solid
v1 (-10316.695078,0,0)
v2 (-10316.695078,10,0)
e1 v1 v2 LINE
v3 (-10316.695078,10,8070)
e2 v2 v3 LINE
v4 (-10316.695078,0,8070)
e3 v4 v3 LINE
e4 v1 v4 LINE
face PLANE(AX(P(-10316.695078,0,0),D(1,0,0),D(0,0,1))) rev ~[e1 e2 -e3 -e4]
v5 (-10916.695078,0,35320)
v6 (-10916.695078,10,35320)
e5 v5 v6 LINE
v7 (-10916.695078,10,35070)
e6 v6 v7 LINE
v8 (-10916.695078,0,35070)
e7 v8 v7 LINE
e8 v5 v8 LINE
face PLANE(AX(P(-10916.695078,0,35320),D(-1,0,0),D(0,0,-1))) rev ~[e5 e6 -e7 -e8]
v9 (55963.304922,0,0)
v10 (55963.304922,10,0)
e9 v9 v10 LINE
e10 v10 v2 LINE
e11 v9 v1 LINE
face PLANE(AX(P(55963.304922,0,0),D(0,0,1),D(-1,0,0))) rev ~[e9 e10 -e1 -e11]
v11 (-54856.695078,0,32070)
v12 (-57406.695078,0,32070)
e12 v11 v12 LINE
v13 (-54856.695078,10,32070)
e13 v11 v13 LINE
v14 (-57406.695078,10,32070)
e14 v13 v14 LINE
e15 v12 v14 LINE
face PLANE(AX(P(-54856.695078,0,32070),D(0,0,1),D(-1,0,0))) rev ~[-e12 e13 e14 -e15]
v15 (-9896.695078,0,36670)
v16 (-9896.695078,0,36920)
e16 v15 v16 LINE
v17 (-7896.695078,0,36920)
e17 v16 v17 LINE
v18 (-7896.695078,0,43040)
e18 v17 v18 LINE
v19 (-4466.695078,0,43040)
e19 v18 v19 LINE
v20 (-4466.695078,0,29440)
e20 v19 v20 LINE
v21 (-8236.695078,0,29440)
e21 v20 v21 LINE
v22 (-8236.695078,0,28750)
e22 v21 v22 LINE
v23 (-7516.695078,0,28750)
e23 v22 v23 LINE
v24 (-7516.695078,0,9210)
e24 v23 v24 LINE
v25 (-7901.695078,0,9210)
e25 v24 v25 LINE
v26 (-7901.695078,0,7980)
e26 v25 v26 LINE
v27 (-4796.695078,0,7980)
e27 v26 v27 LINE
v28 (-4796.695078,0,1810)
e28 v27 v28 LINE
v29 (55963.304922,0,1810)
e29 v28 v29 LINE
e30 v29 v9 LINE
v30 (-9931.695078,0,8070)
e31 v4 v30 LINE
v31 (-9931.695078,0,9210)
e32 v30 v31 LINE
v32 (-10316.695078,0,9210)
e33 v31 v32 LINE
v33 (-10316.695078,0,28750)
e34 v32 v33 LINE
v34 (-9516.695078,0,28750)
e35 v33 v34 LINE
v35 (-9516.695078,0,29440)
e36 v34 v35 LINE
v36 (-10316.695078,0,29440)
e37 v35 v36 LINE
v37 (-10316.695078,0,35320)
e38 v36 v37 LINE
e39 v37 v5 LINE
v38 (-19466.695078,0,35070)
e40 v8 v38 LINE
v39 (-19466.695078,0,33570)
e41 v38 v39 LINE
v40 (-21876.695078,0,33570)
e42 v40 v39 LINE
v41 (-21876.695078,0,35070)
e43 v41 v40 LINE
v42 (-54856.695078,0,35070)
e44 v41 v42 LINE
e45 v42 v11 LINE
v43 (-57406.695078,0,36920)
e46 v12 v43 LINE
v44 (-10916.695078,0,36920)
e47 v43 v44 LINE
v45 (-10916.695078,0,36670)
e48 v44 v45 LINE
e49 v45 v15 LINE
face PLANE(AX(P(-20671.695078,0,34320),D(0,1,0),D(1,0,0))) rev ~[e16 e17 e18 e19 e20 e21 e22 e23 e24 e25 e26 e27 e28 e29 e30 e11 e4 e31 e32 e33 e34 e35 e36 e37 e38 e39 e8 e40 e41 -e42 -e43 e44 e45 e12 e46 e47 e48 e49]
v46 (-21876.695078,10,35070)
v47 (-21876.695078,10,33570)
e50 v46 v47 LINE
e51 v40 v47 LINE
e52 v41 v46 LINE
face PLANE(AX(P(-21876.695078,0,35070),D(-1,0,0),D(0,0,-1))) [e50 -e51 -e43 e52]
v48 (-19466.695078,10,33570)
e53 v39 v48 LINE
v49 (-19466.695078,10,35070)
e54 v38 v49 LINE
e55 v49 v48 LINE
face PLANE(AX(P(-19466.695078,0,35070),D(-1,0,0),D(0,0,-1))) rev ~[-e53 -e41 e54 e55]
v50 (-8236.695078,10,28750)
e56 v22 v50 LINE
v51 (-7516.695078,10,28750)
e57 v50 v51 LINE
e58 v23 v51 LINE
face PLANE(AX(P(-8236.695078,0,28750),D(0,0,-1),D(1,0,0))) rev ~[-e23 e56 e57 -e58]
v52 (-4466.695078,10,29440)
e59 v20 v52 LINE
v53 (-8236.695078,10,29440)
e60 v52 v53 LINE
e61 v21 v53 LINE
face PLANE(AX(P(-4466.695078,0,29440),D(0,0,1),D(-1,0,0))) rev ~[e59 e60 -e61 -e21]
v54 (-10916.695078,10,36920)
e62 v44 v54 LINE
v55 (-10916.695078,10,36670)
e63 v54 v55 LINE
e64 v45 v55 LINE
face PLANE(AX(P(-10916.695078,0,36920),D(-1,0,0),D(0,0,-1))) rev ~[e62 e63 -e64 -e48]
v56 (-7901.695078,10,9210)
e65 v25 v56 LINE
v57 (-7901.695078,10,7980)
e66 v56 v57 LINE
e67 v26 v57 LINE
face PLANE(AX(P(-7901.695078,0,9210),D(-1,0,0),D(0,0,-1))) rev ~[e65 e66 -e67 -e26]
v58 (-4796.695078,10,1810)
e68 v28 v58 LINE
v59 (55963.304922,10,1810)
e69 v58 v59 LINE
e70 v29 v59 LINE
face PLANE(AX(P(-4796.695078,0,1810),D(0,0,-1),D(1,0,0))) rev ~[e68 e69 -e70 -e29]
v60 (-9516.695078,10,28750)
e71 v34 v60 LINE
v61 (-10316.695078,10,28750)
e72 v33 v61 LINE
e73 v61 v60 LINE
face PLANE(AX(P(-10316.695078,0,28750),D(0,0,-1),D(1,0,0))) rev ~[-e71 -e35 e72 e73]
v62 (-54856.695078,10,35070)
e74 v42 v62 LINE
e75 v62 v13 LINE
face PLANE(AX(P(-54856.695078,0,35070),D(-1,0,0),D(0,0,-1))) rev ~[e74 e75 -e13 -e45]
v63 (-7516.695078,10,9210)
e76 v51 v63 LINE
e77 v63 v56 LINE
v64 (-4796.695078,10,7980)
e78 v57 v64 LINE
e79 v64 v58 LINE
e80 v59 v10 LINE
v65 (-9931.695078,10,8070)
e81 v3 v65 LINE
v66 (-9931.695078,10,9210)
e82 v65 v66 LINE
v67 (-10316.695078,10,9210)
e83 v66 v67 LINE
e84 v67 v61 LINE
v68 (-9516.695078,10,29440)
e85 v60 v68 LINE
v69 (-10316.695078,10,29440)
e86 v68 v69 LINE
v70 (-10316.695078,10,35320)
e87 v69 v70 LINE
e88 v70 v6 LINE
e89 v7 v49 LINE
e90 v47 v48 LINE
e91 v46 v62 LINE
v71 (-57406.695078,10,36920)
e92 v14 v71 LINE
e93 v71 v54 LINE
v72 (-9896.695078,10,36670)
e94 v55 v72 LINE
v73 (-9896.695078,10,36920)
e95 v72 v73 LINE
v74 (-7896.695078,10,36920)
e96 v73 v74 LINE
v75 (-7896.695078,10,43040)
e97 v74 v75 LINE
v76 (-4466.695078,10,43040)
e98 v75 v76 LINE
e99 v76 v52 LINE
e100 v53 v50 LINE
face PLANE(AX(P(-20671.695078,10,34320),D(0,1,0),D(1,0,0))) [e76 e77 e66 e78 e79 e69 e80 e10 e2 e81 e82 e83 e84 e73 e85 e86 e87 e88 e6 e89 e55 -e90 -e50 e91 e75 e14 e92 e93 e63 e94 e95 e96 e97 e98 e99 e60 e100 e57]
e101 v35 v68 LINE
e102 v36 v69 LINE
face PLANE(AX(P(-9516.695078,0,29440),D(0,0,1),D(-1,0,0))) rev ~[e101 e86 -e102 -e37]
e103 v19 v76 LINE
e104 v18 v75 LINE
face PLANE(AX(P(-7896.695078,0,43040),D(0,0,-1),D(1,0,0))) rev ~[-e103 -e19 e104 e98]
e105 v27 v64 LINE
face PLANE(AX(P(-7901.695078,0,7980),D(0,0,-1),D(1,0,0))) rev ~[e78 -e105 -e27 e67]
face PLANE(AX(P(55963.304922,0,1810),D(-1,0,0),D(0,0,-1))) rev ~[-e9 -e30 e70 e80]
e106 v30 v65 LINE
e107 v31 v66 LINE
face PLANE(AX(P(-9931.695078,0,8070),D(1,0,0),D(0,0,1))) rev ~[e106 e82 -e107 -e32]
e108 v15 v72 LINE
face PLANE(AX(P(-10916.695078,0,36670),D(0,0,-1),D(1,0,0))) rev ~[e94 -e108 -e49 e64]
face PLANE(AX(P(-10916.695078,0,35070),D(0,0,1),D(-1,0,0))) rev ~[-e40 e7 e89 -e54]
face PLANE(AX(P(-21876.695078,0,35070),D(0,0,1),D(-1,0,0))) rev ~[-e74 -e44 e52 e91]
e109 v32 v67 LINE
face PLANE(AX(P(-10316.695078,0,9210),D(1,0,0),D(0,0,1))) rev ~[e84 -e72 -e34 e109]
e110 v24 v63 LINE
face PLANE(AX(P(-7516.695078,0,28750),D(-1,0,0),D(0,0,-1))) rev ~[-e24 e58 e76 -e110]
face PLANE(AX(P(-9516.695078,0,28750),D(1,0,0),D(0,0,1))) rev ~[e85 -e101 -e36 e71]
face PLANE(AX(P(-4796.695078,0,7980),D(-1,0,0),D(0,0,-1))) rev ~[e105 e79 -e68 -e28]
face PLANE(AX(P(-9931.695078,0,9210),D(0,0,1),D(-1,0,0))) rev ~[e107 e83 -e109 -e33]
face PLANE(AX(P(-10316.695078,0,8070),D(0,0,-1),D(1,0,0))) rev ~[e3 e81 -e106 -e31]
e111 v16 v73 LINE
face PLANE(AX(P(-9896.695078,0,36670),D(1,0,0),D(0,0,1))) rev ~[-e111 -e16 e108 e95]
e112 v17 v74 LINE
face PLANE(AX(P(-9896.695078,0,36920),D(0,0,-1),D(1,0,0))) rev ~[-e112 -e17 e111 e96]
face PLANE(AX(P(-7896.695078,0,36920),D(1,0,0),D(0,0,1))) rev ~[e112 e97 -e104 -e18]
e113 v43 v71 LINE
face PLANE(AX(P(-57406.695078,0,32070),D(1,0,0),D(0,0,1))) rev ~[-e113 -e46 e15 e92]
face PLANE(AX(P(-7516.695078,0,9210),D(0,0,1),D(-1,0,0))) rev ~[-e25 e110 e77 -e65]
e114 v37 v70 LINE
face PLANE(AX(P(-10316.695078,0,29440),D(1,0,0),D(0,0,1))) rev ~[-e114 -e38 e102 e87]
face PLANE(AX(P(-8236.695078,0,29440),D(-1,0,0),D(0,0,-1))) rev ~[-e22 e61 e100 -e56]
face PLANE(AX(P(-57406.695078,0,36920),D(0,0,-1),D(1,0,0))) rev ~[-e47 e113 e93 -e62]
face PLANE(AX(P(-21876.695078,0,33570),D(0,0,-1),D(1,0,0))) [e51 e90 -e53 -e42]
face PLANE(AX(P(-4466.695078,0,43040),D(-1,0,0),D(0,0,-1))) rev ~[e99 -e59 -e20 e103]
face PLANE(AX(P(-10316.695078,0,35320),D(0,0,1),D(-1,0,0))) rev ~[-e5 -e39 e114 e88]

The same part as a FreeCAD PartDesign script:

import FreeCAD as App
import Part
import Sketcher
Q = App.Units.Quantity

doc = App.newDocument("Part")
body = doc.addObject("PartDesign::Body", "Body")

# Sketch on XZ plane
sketch1 = doc.addObject("Sketcher::SketchObject", "Sketch")
body.addObject(sketch1)
sketch1.AttachmentSupport = (doc.XZ_Plane, [""])
sketch1.MapMode = "FlatFace"
sketch1.addGeometry(Part.LineSegment(App.Vector(-21877, 33570, 0), App.Vector(-21877, 35070, 0)), False)
sketch1.addGeometry(Part.LineSegment(App.Vector(-21877, 35070, 0), App.Vector(-54857, 35070, 0)), False)
sketch1.addGeometry(Part.LineSegment(App.Vector(-54857, 35070, 0), App.Vector(-54857, 32070, 0)), False)
sketch1.addGeometry(Part.LineSegment(App.Vector(-54857, 32070, 0), App.Vector(-57407, 32070, 0)), False)
sketch1.addGeometry(Part.LineSegment(App.Vector(-57407, 32070, 0), App.Vector(-57407, 36920, 0)), False)
sketch1.addGeometry(Part.LineSegment(App.Vector(-57407, 36920, 0), App.Vector(-10917, 36920, 0)), False)
sketch1.addGeometry(Part.LineSegment(App.Vector(-10917, 36920, 0), App.Vector(-10917, 36670, 0)), False)
sketch1.addGeometry(Part.LineSegment(App.Vector(-10917, 36670, 0), App.Vector(-9897, 36670, 0)), False)
sketch1.addGeometry(Part.LineSegment(App.Vector(-9897, 36670, 0), App.Vector(-9897, 36920, 0)), False)
sketch1.addGeometry(Part.LineSegment(App.Vector(-9897, 36920, 0), App.Vector(-7897, 36920, 0)), False)
sketch1.addGeometry(Part.LineSegment(App.Vector(-7897, 36920, 0), App.Vector(-7897, 43040, 0)), False)
sketch1.addGeometry(Part.LineSegment(App.Vector(-7897, 43040, 0), App.Vector(-4467, 43040, 0)), False)
sketch1.addGeometry(Part.LineSegment(App.Vector(-4467, 43040, 0), App.Vector(-4467, 29440, 0)), False)
sketch1.addGeometry(Part.LineSegment(App.Vector(-4467, 29440, 0), App.Vector(-8237, 29440, 0)), False)
sketch1.addGeometry(Part.LineSegment(App.Vector(-8237, 29440, 0), App.Vector(-8237, 28750, 0)), False)
sketch1.addGeometry(Part.LineSegment(App.Vector(-8237, 28750, 0), App.Vector(-7517, 28750, 0)), False)
sketch1.addGeometry(Part.LineSegment(App.Vector(-7517, 28750, 0), App.Vector(-7517, 9210, 0)), False)
sketch1.addGeometry(Part.LineSegment(App.Vector(-7517, 9210, 0), App.Vector(-7902, 9210, 0)), False)
sketch1.addGeometry(Part.LineSegment(App.Vector(-7902, 9210, 0), App.Vector(-7902, 7980, 0)), False)
sketch1.addGeometry(Part.LineSegment(App.Vector(-7902, 7980, 0), App.Vector(-4797, 7980, 0)), False)
sketch1.addGeometry(Part.LineSegment(App.Vector(-4797, 7980, 0), App.Vector(-4797, 1810, 0)), False)
sketch1.addGeometry(Part.LineSegment(App.Vector(-4797, 1810, 0), App.Vector(55963, 1810, 0)), False)
sketch1.addGeometry(Part.LineSegment(App.Vector(55963, 1810, 0), App.Vector(55963, 0, 0)), False)
sketch1.addGeometry(Part.LineSegment(App.Vector(55963, 0, 0), App.Vector(-10317, 0, 0)), False)
sketch1.addGeometry(Part.LineSegment(App.Vector(-10317, 0, 0), App.Vector(-10317, 8070, 0)), False)
sketch1.addGeometry(Part.LineSegment(App.Vector(-10317, 8070, 0), App.Vector(-9932, 8070, 0)), False)
sketch1.addGeometry(Part.LineSegment(App.Vector(-9932, 8070, 0), App.Vector(-9932, 9210, 0)), False)
sketch1.addGeometry(Part.LineSegment(App.Vector(-9932, 9210, 0), App.Vector(-10317, 9210, 0)), False)
sketch1.addGeometry(Part.LineSegment(App.Vector(-10317, 9210, 0), App.Vector(-10317, 28750, 0)), False)
sketch1.addGeometry(Part.LineSegment(App.Vector(-10317, 28750, 0), App.Vector(-9517, 28750, 0)), False)
sketch1.addGeometry(Part.LineSegment(App.Vector(-9517, 28750, 0), App.Vector(-9517, 29440, 0)), False)
sketch1.addGeometry(Part.LineSegment(App.Vector(-9517, 29440, 0), App.Vector(-10317, 29440, 0)), False)
sketch1.addGeometry(Part.LineSegment(App.Vector(-10317, 29440, 0), App.Vector(-10317, 35320, 0)), False)
sketch1.addGeometry(Part.LineSegment(App.Vector(-10317, 35320, 0), App.Vector(-10917, 35320, 0)), False)
sketch1.addGeometry(Part.LineSegment(App.Vector(-10917, 35320, 0), App.Vector(-10917, 35070, 0)), False)
sketch1.addGeometry(Part.LineSegment(App.Vector(-10917, 35070, 0), App.Vector(-19467, 35070, 0)), False)
sketch1.addGeometry(Part.LineSegment(App.Vector(-19467, 35070, 0), App.Vector(-19467, 33570, 0)), False)
sketch1.addGeometry(Part.LineSegment(App.Vector(-19467, 33570, 0), App.Vector(-21877, 33570, 0)), False)
sketch1.addConstraint(Sketcher.Constraint("Coincident", 0, 2, 1, 1))
sketch1.addConstraint(Sketcher.Constraint("Coincident", 1, 2, 2, 1))
sketch1.addConstraint(Sketcher.Constraint("Coincident", 2, 2, 3, 1))
sketch1.addConstraint(Sketcher.Constraint("Coincident", 3, 2, 4, 1))
sketch1.addConstraint(Sketcher.Constraint("Coincident", 4, 2, 5, 1))
sketch1.addConstraint(Sketcher.Constraint("Coincident", 5, 2, 6, 1))
sketch1.addConstraint(Sketcher.Constraint("Coincident", 6, 2, 7, 1))
sketch1.addConstraint(Sketcher.Constraint("Coincident", 7, 2, 8, 1))
sketch1.addConstraint(Sketcher.Constraint("Coincident", 8, 2, 9, 1))
sketch1.addConstraint(Sketcher.Constraint("Coincident", 9, 2, 10, 1))
sketch1.addConstraint(Sketcher.Constraint("Coincident", 10, 2, 11, 1))
sketch1.addConstraint(Sketcher.Constraint("Coincident", 11, 2, 12, 1))
sketch1.addConstraint(Sketcher.Constraint("Coincident", 12, 2, 13, 1))
sketch1.addConstraint(Sketcher.Constraint("Coincident", 13, 2, 14, 1))
sketch1.addConstraint(Sketcher.Constraint("Coincident", 14, 2, 15, 1))
sketch1.addConstraint(Sketcher.Constraint("Coincident", 15, 2, 16, 1))
sketch1.addConstraint(Sketcher.Constraint("Coincident", 16, 2, 17, 1))
sketch1.addConstraint(Sketcher.Constraint("Coincident", 17, 2, 18, 1))
sketch1.addConstraint(Sketcher.Constraint("Coincident", 18, 2, 19, 1))
sketch1.addConstraint(Sketcher.Constraint("Coincident", 19, 2, 20, 1))
sketch1.addConstraint(Sketcher.Constraint("Coincident", 20, 2, 21, 1))
sketch1.addConstraint(Sketcher.Constraint("Coincident", 21, 2, 22, 1))
sketch1.addConstraint(Sketcher.Constraint("Coincident", 22, 2, 23, 1))
sketch1.addConstraint(Sketcher.Constraint("Coincident", 23, 2, 24, 1))
sketch1.addConstraint(Sketcher.Constraint("Coincident", 24, 2, 25, 1))
sketch1.addConstraint(Sketcher.Constraint("Coincident", 25, 2, 26, 1))
sketch1.addConstraint(Sketcher.Constraint("Coincident", 26, 2, 27, 1))
sketch1.addConstraint(Sketcher.Constraint("Coincident", 27, 2, 28, 1))
sketch1.addConstraint(Sketcher.Constraint("Coincident", 28, 2, 29, 1))
sketch1.addConstraint(Sketcher.Constraint("Coincident", 29, 2, 30, 1))
sketch1.addConstraint(Sketcher.Constraint("Coincident", 30, 2, 31, 1))
sketch1.addConstraint(Sketcher.Constraint("Coincident", 31, 2, 32, 1))
sketch1.addConstraint(Sketcher.Constraint("Coincident", 32, 2, 33, 1))
sketch1.addConstraint(Sketcher.Constraint("Coincident", 33, 2, 34, 1))
sketch1.addConstraint(Sketcher.Constraint("Coincident", 34, 2, 35, 1))
sketch1.addConstraint(Sketcher.Constraint("Coincident", 35, 2, 36, 1))
sketch1.addConstraint(Sketcher.Constraint("Coincident", 36, 2, 37, 1))
sketch1.addConstraint(Sketcher.Constraint("Coincident", 37, 2, 0, 1))
sketch1.addConstraint(Sketcher.Constraint("Vertical", 0))
sketch1.addConstraint(Sketcher.Constraint("Horizontal", 1))
sketch1.addConstraint(Sketcher.Constraint("Vertical", 2))
sketch1.addConstraint(Sketcher.Constraint("Horizontal", 3))
sketch1.addConstraint(Sketcher.Constraint("Vertical", 4))
sketch1.addConstraint(Sketcher.Constraint("Horizontal", 5))
sketch1.addConstraint(Sketcher.Constraint("Vertical", 6))
sketch1.addConstraint(Sketcher.Constraint("Horizontal", 7))
sketch1.addConstraint(Sketcher.Constraint("Vertical", 8))
sketch1.addConstraint(Sketcher.Constraint("Horizontal", 9))
sketch1.addConstraint(Sketcher.Constraint("Vertical", 10))
sketch1.addConstraint(Sketcher.Constraint("Horizontal", 11))
sketch1.addConstraint(Sketcher.Constraint("Vertical", 12))
sketch1.addConstraint(Sketcher.Constraint("Horizontal", 13))
sketch1.addConstraint(Sketcher.Constraint("Vertical", 14))
sketch1.addConstraint(Sketcher.Constraint("Horizontal", 15))
sketch1.addConstraint(Sketcher.Constraint("Vertical", 16))
sketch1.addConstraint(Sketcher.Constraint("Horizontal", 17))
sketch1.addConstraint(Sketcher.Constraint("Vertical", 18))
sketch1.addConstraint(Sketcher.Constraint("Horizontal", 19))
sketch1.addConstraint(Sketcher.Constraint("Vertical", 20))
sketch1.addConstraint(Sketcher.Constraint("Horizontal", 21))
sketch1.addConstraint(Sketcher.Constraint("Vertical", 22))
sketch1.addConstraint(Sketcher.Constraint("Horizontal", 23))
sketch1.addConstraint(Sketcher.Constraint("Vertical", 24))
sketch1.addConstraint(Sketcher.Constraint("Horizontal", 25))
sketch1.addConstraint(Sketcher.Constraint("Vertical", 26))
sketch1.addConstraint(Sketcher.Constraint("Horizontal", 27))
sketch1.addConstraint(Sketcher.Constraint("Vertical", 28))
sketch1.addConstraint(Sketcher.Constraint("Horizontal", 29))
sketch1.addConstraint(Sketcher.Constraint("Vertical", 30))
sketch1.addConstraint(Sketcher.Constraint("Horizontal", 31))
sketch1.addConstraint(Sketcher.Constraint("Vertical", 32))
sketch1.addConstraint(Sketcher.Constraint("Horizontal", 33))
sketch1.addConstraint(Sketcher.Constraint("Vertical", 34))
sketch1.addConstraint(Sketcher.Constraint("Horizontal", 35))
sketch1.addConstraint(Sketcher.Constraint("Vertical", 36))
sketch1.addConstraint(Sketcher.Constraint("Horizontal", 37))
sketch1.addConstraint(Sketcher.Constraint("PointOnObject", 22, 2, -1))
sketch1.addConstraint(Sketcher.Constraint("Horizontal", 5, 2, 8, 2))
sketch1.addConstraint(Sketcher.Constraint("Horizontal", 17, 2, 26, 2))
sketch1.addConstraint(Sketcher.Constraint("Horizontal", 15, 2, 28, 2))
sketch1.addConstraint(Sketcher.Constraint("Horizontal", 13, 2, 30, 2))
sketch1.addConstraint(Sketcher.Constraint("Horizontal", 1, 2, 34, 2))
sketch1.addConstraint(Sketcher.Constraint("Vertical", 24, 2, 27, 2))
sketch1.addConstraint(Sketcher.Constraint("Vertical", 28, 2, 31, 2))
sketch1.addConstraint(Sketcher.Constraint("Vertical", 6, 2, 33, 2))
sketch1.addConstraint(Sketcher.Constraint("Equal", 17, 25))
sketch1.addConstraint(Sketcher.Constraint("Equal", 8, 34))
sketch1.addConstraint(Sketcher.Constraint("DistanceX", 1, 2, 1, 1, Q("32980 mm")))
sketch1.addConstraint(Sketcher.Constraint("DistanceX", 3, 2, 3, 1, Q("2550 mm")))
sketch1.addConstraint(Sketcher.Constraint("DistanceX", 5, 1, 5, 2, Q("46490 mm")))
sketch1.addConstraint(Sketcher.Constraint("DistanceX", 7, 1, 7, 2, Q("1020 mm")))
sketch1.addConstraint(Sketcher.Constraint("DistanceX", 9, 1, 9, 2, Q("2000 mm")))
sketch1.addConstraint(Sketcher.Constraint("DistanceX", 11, 1, 11, 2, Q("3430 mm")))
sketch1.addConstraint(Sketcher.Constraint("DistanceX", 13, 2, 13, 1, Q("3770 mm")))
sketch1.addConstraint(Sketcher.Constraint("DistanceX", 15, 1, 15, 2, Q("720 mm")))
sketch1.addConstraint(Sketcher.Constraint("DistanceX", 17, 2, 17, 1, Q("385 mm")))
sketch1.addConstraint(Sketcher.Constraint("DistanceX", 19, 1, 19, 2, Q("3105 mm")))
sketch1.addConstraint(Sketcher.Constraint("DistanceX", 21, 1, 21, 2, Q("60760 mm")))
sketch1.addConstraint(Sketcher.Constraint("DistanceX", 23, 2, 23, 1, Q("66280 mm")))
sketch1.addConstraint(Sketcher.Constraint("DistanceX", 29, 1, 29, 2, Q("800 mm")))
sketch1.addConstraint(Sketcher.Constraint("DistanceX", 35, 2, 35, 1, Q("8550 mm")))
sketch1.addConstraint(Sketcher.Constraint("DistanceY", 0, 1, 0, 2, Q("1500 mm")))
sketch1.addConstraint(Sketcher.Constraint("DistanceY", 2, 2, 2, 1, Q("3000 mm")))
sketch1.addConstraint(Sketcher.Constraint("DistanceY", 4, 1, 4, 2, Q("4850 mm")))
sketch1.addConstraint(Sketcher.Constraint("DistanceY", 6, 2, 6, 1, Q("250 mm")))
sketch1.addConstraint(Sketcher.Constraint("DistanceY", 10, 1, 10, 2, Q("6120 mm")))
sketch1.addConstraint(Sketcher.Constraint("DistanceY", 12, 2, 12, 1, Q("13600 mm")))
sketch1.addConstraint(Sketcher.Constraint("DistanceY", 14, 2, 14, 1, Q("690 mm")))
sketch1.addConstraint(Sketcher.Constraint("DistanceY", 16, 2, 16, 1, Q("19540 mm")))
sketch1.addConstraint(Sketcher.Constraint("DistanceY", 18, 2, 18, 1, Q("1230 mm")))
sketch1.addConstraint(Sketcher.Constraint("DistanceY", 20, 2, 20, 1, Q("6170 mm")))
sketch1.addConstraint(Sketcher.Constraint("DistanceY", 22, 2, 22, 1, Q("1810 mm")))
sketch1.addConstraint(Sketcher.Constraint("DistanceY", 24, 1, 24, 2, Q("8070 mm")))
sketch1.addConstraint(Sketcher.Constraint("DistanceX", 0, 2, -1, 1, Q("21876.695078 mm")))
pad1 = doc.addObject("PartDesign::Pad", "Pad")
body.addObject(pad1)
pad1.Profile = sketch1
pad1.Length = 10
pad1.Reversed = True

doc.recompute()
